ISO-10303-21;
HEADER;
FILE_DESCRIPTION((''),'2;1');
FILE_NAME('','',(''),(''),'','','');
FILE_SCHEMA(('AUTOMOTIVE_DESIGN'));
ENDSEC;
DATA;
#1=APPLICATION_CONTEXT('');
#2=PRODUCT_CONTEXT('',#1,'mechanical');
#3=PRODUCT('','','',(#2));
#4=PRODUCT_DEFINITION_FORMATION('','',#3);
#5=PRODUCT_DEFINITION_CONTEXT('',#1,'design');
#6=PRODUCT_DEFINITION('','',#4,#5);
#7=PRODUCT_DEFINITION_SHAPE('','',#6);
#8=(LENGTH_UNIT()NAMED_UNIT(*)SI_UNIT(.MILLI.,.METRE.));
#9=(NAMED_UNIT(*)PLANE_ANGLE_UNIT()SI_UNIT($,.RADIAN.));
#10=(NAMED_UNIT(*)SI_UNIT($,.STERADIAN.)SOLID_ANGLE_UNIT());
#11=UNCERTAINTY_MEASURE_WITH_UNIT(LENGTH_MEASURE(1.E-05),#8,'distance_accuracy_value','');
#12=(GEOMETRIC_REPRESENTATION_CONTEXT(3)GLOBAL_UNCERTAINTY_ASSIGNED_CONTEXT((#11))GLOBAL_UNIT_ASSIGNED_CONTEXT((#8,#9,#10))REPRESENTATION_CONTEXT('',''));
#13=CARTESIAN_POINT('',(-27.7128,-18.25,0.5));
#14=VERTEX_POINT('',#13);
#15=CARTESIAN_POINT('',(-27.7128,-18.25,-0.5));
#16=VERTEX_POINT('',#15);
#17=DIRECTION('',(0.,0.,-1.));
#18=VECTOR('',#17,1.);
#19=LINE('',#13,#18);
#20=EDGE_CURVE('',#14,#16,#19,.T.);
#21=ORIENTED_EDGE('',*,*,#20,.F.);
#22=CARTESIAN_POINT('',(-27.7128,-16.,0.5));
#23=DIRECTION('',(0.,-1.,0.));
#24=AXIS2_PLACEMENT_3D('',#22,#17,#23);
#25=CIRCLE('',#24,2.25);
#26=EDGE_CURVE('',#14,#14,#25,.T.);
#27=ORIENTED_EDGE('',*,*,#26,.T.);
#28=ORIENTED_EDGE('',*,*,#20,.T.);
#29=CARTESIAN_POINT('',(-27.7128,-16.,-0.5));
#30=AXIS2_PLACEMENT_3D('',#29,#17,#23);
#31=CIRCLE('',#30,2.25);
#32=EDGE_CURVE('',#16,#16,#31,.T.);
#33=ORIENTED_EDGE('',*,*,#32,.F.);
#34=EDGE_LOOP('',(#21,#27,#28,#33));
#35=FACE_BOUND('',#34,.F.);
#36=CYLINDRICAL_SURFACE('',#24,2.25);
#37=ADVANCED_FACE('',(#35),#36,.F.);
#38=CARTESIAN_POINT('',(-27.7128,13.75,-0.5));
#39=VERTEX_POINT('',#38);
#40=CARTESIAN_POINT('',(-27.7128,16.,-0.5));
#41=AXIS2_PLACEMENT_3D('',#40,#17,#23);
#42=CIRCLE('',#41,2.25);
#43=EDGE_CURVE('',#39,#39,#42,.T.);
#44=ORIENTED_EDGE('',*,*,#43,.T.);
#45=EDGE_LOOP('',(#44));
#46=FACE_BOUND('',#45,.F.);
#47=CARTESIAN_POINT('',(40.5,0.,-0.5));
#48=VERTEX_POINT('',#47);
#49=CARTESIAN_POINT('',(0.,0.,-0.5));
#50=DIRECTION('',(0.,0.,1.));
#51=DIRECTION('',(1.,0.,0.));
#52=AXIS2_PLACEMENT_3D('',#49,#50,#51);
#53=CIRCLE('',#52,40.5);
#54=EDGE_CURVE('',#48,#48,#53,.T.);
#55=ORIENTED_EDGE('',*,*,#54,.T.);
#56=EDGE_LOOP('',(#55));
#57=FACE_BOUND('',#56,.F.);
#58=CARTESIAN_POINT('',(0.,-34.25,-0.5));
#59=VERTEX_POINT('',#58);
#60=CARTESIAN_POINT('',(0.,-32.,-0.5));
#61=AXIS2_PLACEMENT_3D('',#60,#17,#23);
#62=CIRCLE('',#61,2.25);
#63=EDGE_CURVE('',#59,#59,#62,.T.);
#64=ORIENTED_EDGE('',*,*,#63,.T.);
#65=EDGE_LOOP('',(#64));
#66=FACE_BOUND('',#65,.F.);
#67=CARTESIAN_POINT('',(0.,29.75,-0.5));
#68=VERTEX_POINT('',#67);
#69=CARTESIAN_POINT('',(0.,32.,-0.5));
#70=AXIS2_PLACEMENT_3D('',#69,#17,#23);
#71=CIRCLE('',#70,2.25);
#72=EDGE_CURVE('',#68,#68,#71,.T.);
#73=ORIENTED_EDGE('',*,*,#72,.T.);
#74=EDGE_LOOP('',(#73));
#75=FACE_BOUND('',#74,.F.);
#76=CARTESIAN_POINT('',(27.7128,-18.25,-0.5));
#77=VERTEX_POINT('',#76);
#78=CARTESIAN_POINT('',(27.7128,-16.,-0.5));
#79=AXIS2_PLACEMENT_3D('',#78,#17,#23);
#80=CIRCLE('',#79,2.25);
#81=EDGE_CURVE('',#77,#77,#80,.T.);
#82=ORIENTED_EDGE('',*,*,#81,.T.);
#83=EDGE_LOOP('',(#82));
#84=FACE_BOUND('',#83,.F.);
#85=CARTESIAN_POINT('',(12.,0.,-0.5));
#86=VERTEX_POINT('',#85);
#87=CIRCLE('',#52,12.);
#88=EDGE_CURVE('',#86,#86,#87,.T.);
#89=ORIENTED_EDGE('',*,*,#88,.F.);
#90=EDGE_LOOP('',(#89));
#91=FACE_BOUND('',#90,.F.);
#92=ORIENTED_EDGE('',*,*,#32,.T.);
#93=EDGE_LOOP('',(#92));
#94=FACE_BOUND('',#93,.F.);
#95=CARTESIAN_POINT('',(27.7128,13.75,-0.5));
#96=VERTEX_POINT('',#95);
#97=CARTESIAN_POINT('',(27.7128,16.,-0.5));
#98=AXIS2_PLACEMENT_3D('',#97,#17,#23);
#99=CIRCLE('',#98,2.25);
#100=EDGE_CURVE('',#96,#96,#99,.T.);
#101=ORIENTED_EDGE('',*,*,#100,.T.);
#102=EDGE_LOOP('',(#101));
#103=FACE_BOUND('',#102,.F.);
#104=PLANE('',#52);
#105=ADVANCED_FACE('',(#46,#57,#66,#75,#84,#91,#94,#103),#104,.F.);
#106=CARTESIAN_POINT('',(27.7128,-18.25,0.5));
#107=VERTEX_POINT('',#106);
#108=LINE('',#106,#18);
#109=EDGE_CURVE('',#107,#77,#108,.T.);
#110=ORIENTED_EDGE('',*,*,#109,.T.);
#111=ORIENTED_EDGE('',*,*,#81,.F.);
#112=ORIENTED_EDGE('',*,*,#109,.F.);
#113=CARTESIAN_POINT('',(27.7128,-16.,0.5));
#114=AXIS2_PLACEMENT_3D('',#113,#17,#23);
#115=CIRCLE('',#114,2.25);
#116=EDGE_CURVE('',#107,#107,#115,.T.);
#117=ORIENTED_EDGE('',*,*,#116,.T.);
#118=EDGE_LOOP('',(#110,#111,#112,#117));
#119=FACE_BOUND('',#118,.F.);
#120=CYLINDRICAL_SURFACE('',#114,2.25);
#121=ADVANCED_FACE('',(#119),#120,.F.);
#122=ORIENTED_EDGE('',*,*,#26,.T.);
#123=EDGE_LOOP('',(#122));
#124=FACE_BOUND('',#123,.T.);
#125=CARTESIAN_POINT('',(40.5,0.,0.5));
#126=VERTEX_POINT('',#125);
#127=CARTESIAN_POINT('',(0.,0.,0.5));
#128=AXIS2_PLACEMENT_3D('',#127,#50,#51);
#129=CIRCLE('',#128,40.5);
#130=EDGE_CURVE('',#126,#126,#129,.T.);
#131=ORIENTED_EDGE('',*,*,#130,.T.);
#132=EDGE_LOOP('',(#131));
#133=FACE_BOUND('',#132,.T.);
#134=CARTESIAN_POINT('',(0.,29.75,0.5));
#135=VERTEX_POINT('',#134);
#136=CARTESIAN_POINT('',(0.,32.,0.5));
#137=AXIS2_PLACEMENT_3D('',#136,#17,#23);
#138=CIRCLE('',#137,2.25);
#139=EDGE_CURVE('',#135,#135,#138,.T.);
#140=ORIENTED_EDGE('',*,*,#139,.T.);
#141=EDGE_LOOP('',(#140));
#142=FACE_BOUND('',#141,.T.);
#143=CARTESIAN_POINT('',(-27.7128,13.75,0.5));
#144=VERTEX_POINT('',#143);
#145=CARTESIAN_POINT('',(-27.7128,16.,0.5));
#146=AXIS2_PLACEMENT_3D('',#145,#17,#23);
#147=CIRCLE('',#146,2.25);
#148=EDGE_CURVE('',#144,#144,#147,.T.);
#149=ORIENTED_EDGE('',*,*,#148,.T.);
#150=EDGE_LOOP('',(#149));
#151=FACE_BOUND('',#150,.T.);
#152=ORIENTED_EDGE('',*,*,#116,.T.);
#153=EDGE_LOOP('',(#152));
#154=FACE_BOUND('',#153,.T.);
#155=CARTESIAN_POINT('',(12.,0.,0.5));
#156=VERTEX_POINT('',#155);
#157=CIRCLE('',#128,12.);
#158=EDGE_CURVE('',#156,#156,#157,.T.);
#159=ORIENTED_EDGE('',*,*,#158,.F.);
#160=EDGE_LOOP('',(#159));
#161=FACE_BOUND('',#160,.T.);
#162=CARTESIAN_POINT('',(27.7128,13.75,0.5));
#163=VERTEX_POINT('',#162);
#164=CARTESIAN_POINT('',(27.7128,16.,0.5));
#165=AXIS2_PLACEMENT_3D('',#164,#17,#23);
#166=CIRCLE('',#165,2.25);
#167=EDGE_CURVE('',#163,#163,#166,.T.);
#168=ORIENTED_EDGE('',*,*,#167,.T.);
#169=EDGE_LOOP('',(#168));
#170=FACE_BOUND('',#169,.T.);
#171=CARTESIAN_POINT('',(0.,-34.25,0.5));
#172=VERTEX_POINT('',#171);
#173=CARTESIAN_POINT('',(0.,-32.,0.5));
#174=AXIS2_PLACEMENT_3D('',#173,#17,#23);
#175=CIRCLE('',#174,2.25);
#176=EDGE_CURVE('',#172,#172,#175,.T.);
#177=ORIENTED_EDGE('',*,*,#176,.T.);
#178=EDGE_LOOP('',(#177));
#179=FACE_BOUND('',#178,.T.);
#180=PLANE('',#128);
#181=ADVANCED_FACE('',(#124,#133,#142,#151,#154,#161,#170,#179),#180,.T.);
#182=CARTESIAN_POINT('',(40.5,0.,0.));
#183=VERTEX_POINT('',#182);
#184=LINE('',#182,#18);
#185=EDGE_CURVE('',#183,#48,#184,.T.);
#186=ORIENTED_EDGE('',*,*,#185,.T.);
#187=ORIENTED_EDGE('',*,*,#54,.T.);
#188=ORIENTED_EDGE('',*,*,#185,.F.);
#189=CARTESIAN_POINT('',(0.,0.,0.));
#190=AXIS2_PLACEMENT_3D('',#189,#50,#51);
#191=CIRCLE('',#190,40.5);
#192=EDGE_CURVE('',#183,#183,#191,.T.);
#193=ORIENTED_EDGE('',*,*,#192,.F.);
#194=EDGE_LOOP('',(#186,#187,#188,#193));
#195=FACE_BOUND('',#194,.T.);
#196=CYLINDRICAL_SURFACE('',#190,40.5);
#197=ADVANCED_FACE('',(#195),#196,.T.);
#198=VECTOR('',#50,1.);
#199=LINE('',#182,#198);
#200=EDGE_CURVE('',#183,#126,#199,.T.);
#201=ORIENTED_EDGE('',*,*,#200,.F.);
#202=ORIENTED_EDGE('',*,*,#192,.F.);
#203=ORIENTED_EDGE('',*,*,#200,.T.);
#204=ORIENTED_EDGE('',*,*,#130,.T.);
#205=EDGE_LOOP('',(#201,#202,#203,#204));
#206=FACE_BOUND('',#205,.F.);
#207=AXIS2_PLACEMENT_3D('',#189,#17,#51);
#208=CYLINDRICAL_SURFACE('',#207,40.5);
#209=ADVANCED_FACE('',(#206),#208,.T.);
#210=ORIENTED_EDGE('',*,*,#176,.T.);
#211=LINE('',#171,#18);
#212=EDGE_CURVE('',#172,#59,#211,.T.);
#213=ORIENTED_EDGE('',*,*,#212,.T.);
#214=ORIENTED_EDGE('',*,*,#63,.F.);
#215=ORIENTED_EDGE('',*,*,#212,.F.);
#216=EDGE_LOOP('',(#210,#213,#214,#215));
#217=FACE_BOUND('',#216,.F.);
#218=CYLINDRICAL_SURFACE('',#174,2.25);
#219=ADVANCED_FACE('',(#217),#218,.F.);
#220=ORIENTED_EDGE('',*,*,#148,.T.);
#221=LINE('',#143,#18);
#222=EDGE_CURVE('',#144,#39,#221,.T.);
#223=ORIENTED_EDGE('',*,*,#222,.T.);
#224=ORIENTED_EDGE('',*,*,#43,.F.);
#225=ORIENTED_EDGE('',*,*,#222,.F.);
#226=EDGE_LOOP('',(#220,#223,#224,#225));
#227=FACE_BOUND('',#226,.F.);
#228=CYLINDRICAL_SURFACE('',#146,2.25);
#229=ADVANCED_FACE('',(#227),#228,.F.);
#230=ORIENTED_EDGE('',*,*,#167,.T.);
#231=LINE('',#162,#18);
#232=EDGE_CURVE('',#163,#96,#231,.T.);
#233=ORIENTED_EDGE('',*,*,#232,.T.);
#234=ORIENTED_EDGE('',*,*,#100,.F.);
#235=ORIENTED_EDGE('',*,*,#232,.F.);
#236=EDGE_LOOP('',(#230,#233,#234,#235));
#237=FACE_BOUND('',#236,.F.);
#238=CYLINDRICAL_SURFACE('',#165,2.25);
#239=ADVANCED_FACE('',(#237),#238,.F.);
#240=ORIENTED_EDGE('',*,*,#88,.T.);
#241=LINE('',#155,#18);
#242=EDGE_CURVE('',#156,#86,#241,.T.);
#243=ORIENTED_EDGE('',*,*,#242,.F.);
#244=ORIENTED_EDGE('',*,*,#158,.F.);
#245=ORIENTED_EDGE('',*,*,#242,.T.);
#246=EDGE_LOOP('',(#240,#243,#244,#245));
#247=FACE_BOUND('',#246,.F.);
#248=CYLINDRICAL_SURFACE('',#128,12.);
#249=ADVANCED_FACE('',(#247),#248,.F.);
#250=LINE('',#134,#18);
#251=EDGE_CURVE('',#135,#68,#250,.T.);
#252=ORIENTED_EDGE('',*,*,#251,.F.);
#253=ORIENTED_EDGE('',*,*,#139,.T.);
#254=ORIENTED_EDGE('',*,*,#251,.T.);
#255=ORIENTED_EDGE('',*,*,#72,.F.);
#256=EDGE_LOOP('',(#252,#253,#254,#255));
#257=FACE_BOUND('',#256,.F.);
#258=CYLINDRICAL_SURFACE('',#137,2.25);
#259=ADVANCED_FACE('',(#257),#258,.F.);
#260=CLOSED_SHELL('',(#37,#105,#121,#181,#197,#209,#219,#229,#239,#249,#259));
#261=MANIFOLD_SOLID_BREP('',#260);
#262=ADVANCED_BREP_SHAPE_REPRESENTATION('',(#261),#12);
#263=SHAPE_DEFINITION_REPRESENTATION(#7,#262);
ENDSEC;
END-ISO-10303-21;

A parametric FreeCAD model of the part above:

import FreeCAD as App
import Part
import Sketcher

V = App.Vector

doc = App.newDocument("Part")
body = doc.addObject("PartDesign::Body", "Body")

sketch1 = body.newObject("Sketcher::SketchObject", "Sketch")
sketch1.AttachmentSupport = (doc.getObject("XY_Plane"), [""])
sketch1.MapMode = "FlatFace"
sketch1.addGeometry(Part.Circle(V(0, 0, 0), V(0, 0, 1), 40.5), False)
sketch1.addConstraint([
    Sketcher.Constraint("Coincident", 0, 3, -1, 1),
    Sketcher.Constraint("Diameter", 0, 81.0),
])
pad1 = body.newObject("PartDesign::Pad", "Pad")
pad1.Profile = sketch1
pad1.Length = 1
pad1.Midplane = True

sketch2 = body.newObject("Sketcher::SketchObject", "Sketch001")
sketch2.AttachmentSupport = (doc.getObject("XY_Plane"), [""])
sketch2.MapMode = "FlatFace"
sketch2.AttachmentOffset = App.Placement(V(0, 0, 0.5), App.Rotation())
sketch2.addGeometry(Part.Circle(V(0, 0, 0), V(0, 0, 1), 12), False)
sketch2.addConstraint([
    Sketcher.Constraint("Coincident", 0, 3, -1, 1),
    Sketcher.Constraint("Diameter", 0, 24.0),
])
pocket1 = body.newObject("PartDesign::Pocket", "Pocket")
pocket1.Profile = sketch2
pocket1.Length = 10

sketch3 = body.newObject("Sketcher::SketchObject", "Sketch002")
sketch3.AttachmentSupport = (doc.getObject("XY_Plane"), [""])
sketch3.MapMode = "FlatFace"
sketch3.AttachmentOffset = App.Placement(V(0, 0, 0.5), App.Rotation())
sketch3.addGeometry([
    Part.Circle(V(0, 32, 0), V(0, 0, 1), 2.25),
    Part.Circle(V(-27.7128, 16, 0), V(0, 0, 1), 2.25),
    Part.Circle(V(-27.7128, -16, 0), V(0, 0, 1), 2.25),
    Part.Circle(V(0, -32, 0), V(0, 0, 1), 2.25),
    Part.Circle(V(27.7128, -16, 0), V(0, 0, 1), 2.25),
    Part.Circle(V(27.7128, 16, 0), V(0, 0, 1), 2.25),
], False)
sketch3.addConstraint([
    Sketcher.Constraint("Equal", 0, 1),
    Sketcher.Constraint("Equal", 1, 2),
    Sketcher.Constraint("Equal", 2, 3),
    Sketcher.Constraint("Equal", 3, 4),
    Sketcher.Constraint("Equal", 4, 5),
    Sketcher.Constraint("Symmetric", 0, 3, 3, 3, -1, 1),
    Sketcher.Constraint("Symmetric", 1, 3, 4, 3, -1, 1),
    Sketcher.Constraint("Symmetric", 2, 3, 5, 3, -1, 1),
    Sketcher.Constraint("Symmetric", 2, 3, 4, 3, -2),
    Sketcher.Constraint("PointOnObject", 0, 3, -2),
    Sketcher.Constraint("Diameter", 0, 4.5),
    Sketcher.Constraint("DistanceY", -1, 1, 0, 3, 32.0),
    Sketcher.Constraint("DistanceY", -1, 1, 1, 3, 16.0),
    Sketcher.Constraint("DistanceX", 1, 3, -1, 1, 27.7128),
])
doc.recompute()
hole = body.newObject("PartDesign::Hole", "Hole")
hole.Profile = sketch3
hole.ThreadType = "None"
hole.Diameter = 4.5
hole.DepthType = "ThroughAll"

doc.recompute()
